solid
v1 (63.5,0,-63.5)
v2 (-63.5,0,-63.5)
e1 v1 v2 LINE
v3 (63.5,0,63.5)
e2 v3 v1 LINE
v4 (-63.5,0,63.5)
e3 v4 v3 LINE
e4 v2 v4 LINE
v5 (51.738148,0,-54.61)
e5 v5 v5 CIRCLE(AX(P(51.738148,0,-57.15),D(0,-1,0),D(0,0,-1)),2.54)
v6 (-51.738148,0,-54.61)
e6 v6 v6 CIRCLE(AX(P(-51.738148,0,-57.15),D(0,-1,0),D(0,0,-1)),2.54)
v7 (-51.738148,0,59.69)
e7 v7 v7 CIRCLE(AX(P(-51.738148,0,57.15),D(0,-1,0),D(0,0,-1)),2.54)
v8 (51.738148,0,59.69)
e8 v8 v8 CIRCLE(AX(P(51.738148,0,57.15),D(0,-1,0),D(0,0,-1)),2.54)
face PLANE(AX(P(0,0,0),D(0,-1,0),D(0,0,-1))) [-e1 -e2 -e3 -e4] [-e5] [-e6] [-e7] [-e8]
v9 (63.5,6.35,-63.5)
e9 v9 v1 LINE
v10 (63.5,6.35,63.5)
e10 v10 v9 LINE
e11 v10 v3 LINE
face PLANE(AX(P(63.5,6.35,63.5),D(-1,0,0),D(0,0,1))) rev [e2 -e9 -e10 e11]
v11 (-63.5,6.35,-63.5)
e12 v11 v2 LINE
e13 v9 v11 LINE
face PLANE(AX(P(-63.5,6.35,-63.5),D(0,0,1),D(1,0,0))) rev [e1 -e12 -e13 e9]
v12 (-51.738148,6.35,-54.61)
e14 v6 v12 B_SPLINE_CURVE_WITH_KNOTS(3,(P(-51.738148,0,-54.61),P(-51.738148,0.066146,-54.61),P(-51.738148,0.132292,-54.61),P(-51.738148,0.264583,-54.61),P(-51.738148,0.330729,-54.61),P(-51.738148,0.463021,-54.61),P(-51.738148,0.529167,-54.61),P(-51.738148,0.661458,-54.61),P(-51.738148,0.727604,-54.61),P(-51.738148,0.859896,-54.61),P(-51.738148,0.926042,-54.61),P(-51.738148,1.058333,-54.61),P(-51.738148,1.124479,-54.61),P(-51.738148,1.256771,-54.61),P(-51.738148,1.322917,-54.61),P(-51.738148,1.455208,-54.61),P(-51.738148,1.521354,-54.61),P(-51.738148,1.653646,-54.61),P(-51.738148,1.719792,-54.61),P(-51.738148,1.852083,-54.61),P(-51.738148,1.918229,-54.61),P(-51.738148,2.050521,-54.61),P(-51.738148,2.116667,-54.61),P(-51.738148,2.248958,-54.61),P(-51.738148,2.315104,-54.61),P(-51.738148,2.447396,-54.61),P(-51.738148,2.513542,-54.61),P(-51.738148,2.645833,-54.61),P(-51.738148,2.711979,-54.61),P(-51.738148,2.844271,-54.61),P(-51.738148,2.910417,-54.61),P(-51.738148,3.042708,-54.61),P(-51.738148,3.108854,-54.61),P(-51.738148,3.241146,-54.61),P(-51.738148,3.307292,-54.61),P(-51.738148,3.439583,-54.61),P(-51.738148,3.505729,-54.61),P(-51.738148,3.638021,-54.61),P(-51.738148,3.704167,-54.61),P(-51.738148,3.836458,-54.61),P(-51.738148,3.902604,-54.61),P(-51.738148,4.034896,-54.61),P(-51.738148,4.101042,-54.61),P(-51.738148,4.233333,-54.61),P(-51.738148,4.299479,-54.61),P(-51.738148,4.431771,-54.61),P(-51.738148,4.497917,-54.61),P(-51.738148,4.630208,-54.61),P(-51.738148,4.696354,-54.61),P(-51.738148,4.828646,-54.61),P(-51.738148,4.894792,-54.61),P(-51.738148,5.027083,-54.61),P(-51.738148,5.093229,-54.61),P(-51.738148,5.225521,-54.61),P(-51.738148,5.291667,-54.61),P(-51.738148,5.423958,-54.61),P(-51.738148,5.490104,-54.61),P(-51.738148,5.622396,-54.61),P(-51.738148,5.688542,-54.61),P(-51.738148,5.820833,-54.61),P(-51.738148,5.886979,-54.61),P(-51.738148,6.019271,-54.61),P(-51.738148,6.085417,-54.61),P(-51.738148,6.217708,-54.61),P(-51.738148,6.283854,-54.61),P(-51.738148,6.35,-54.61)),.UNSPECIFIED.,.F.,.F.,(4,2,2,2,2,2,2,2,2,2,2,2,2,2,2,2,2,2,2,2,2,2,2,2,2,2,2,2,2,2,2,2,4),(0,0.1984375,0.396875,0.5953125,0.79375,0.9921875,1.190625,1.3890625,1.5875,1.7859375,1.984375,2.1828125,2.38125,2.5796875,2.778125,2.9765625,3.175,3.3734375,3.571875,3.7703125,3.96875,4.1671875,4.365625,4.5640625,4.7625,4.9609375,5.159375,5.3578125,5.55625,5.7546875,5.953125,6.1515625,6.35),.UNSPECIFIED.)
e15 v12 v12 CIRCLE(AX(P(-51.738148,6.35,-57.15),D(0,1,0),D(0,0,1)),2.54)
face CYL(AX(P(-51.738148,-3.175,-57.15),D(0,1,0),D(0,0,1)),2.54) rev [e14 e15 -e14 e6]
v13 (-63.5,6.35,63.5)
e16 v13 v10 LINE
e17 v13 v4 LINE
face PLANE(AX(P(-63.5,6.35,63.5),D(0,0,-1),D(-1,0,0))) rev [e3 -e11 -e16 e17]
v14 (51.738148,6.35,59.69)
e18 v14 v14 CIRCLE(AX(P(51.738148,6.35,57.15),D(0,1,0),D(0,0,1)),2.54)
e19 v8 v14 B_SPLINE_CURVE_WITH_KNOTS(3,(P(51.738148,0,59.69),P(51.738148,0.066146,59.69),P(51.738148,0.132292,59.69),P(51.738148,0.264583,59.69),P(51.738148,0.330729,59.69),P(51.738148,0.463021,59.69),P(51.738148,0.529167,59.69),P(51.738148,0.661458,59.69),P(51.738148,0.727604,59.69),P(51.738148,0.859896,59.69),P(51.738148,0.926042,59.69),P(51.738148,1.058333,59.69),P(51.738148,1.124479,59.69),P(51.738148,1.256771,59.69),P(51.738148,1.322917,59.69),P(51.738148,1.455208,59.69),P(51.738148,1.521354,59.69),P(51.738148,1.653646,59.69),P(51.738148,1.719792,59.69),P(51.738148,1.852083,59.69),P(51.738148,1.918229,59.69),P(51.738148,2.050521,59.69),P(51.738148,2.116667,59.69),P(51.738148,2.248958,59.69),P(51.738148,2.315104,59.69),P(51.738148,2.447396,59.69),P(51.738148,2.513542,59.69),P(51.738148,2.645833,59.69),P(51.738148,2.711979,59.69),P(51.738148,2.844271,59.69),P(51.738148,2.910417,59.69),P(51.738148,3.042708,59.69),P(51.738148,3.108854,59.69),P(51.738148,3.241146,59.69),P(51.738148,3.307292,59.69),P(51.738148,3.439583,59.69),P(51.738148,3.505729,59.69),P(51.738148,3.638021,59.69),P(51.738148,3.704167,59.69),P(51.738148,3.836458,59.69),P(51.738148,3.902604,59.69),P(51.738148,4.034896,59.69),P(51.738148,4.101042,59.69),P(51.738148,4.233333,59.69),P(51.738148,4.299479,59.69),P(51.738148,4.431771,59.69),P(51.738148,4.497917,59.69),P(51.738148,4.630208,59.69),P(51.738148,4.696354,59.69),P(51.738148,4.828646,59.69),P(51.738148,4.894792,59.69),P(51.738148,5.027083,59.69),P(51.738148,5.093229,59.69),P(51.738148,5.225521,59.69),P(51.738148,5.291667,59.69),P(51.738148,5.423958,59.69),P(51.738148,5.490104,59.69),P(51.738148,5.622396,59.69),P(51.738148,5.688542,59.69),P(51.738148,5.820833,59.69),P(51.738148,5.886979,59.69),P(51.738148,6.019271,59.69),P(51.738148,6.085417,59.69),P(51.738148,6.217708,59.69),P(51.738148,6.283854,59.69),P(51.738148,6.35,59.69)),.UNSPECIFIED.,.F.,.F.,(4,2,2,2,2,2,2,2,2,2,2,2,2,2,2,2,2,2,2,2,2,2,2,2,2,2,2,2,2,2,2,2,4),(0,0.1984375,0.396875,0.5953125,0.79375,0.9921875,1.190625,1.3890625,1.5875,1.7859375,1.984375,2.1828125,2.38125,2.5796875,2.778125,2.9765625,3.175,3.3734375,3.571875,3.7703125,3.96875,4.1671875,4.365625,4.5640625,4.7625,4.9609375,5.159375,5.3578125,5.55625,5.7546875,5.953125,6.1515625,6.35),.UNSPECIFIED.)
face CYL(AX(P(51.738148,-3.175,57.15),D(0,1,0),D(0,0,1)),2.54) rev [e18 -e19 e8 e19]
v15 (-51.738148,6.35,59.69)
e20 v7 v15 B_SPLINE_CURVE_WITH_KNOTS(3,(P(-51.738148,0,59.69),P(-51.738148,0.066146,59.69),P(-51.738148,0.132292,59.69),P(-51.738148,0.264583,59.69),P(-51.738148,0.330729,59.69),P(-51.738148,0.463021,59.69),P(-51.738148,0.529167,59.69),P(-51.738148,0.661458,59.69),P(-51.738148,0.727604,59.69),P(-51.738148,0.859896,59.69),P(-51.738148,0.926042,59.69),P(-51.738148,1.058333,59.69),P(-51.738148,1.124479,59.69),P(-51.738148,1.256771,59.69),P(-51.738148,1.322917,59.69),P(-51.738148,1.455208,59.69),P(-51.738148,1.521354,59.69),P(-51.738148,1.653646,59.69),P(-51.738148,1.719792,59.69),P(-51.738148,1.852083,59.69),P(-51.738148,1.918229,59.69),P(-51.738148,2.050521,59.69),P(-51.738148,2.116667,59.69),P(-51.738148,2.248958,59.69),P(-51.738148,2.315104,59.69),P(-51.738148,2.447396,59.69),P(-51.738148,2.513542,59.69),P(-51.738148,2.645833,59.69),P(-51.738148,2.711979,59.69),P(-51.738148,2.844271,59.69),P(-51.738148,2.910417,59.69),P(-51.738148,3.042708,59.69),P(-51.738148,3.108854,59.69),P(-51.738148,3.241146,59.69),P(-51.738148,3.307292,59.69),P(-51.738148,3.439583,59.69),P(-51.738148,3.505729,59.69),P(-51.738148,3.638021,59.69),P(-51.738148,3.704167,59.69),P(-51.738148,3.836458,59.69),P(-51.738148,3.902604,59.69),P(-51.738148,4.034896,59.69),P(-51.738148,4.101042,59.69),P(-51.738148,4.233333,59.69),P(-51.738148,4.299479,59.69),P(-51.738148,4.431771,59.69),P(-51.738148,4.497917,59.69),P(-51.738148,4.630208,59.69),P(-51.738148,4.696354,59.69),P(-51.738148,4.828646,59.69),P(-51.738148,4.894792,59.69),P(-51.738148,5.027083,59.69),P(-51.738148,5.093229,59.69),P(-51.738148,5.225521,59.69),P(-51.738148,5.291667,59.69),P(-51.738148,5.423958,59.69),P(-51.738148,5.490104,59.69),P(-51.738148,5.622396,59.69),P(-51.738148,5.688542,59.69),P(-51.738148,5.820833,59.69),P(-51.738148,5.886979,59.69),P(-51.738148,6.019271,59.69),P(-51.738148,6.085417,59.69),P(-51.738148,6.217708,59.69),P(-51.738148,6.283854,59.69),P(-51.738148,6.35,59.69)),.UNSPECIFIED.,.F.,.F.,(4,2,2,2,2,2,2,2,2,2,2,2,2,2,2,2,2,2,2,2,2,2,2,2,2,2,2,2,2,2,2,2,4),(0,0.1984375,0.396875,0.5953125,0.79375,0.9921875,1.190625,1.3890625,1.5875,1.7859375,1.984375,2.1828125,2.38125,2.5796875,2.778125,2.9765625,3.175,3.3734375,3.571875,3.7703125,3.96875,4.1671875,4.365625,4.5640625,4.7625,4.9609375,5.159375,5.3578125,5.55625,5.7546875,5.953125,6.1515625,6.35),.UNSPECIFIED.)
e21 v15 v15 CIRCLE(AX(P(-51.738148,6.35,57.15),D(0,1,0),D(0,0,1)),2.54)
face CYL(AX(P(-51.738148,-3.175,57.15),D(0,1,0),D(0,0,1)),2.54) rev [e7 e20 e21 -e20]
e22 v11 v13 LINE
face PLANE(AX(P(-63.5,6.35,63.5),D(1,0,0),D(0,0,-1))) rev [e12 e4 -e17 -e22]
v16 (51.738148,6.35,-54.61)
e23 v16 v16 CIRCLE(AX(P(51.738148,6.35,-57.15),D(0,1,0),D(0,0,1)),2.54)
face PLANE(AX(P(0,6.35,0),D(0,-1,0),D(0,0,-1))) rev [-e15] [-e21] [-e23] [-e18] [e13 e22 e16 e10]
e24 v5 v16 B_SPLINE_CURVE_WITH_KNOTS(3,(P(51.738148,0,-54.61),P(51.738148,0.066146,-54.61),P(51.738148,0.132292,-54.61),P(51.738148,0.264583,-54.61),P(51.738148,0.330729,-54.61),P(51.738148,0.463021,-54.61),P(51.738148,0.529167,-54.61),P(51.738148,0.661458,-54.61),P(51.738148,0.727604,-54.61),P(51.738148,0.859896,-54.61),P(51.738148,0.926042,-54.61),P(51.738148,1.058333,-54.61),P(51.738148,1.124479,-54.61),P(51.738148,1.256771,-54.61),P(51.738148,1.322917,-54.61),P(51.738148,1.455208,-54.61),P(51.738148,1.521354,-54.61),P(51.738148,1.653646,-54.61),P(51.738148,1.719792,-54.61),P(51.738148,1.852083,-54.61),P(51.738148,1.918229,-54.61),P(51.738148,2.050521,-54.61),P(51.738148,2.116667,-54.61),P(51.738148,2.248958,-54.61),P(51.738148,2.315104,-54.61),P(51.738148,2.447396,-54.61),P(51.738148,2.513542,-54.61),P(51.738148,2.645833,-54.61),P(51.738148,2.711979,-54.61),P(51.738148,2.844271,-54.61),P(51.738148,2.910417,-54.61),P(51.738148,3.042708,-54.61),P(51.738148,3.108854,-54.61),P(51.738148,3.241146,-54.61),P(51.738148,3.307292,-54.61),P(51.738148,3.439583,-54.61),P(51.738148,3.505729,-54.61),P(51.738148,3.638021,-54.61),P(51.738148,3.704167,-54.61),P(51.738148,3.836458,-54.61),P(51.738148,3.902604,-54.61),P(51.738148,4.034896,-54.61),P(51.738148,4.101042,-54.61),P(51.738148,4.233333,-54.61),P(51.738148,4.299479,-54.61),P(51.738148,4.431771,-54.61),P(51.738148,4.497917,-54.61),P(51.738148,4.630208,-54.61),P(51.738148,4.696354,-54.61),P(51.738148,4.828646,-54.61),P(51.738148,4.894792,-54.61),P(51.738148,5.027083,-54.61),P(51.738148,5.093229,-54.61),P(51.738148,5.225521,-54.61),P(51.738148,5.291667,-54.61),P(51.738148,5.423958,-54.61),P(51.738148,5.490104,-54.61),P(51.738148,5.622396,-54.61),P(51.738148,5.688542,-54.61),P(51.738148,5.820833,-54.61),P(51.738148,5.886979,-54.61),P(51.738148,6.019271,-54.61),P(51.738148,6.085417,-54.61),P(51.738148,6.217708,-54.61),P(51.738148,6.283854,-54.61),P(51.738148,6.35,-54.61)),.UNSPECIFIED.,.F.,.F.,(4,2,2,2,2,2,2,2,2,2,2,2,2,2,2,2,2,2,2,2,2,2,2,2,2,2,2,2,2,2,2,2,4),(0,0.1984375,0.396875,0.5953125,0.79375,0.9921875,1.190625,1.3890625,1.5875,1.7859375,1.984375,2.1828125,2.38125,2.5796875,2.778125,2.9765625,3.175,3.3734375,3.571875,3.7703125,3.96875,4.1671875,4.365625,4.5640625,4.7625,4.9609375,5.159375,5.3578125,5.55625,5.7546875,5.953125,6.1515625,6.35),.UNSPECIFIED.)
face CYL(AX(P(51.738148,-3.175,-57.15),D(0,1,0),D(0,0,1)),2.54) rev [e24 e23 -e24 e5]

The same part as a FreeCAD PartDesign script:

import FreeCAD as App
import Part
import Sketcher
from FreeCAD import Vector
Q = App.Units.Quantity


def add_polygon(sketch, points):
    """Adds a closed chain of lines whose ends are joined by coincident constraints."""
    first, n = sketch.GeometryCount, len(points)
    for a, b in zip(points, points[1:] + points[:1]):
        sketch.addGeometry(Part.LineSegment(App.Vector(*a, 0), App.Vector(*b, 0)), False)
    for i in range(n):
        sketch.addConstraint(Sketcher.Constraint("Coincident", first + i, 2, first + (i + 1) % n, 1))

doc = App.newDocument("Part")
body = doc.addObject("PartDesign::Body", "Body")

# Sketch on XZ plane
sketch1 = body.newObject("Sketcher::SketchObject", "Sketch")
sketch1.AttachmentSupport = (doc.getObject("XZ_Plane"), [""])
sketch1.MapMode = "FlatFace"
add_polygon(sketch1, [(-64, -64), (-64, 64), (64, 64), (64, -64)])  # lines 0-3
sketch1.addConstraint([
    Sketcher.Constraint("Vertical", 0),
    Sketcher.Constraint("Horizontal", 1),
    Sketcher.Constraint("Vertical", 2),
    Sketcher.Constraint("Horizontal", 3),
    Sketcher.Constraint("Symmetric", 0, 2, 2, 2, -1, 1),
    Sketcher.Constraint("Equal", 3, 0),
    Sketcher.Constraint("DistanceX", 1, 1, 1, 2, Q("5 in")),
])
pad1 = body.newObject("PartDesign::Pad", "Pad")
pad1.Profile = sketch1
pad1.Length = Q("0.25 in")
pad1.Reversed = True

# Sketch on XZ plane
sketch2 = body.newObject("Sketcher::SketchObject", "Sketch001")
sketch2.AttachmentSupport = (doc.getObject("XZ_Plane"), [""])
sketch2.MapMode = "FlatFace"
sketch2.AttachmentOffset = App.Placement(Vector(0, 0, -0.25 * 25.4), App.Rotation())
sketch2.addGeometry([
    Part.Circle(Vector(-51.7, -57.1, 0), Vector(0, 0, 1), 2.5),
    Part.Circle(Vector(51.7, -57.1, 0), Vector(0, 0, 1), 2.5),
    Part.Circle(Vector(-51.7, 57.1, 0), Vector(0, 0, 1), 2.5),
    Part.Circle(Vector(51.7, 57.1, 0), Vector(0, 0, 1), 2.5),
], False)
sketch2.addConstraint([
    Sketcher.Constraint("Equal", 0, 1),
    Sketcher.Constraint("Equal", 1, 2),
    Sketcher.Constraint("Equal", 2, 3),
    Sketcher.Constraint("Symmetric", 1, 3, 2, 3, -1, 1),
    Sketcher.Constraint("Symmetric", 0, 3, 3, 3, -1, 1),
    Sketcher.Constraint("Symmetric", 0, 3, 1, 3, -2),
    Sketcher.Constraint("Diameter", 0, Q("0.2 in")),
    Sketcher.Constraint("DistanceY", 0, 3, 2, 3, Q("4.5 in")),
    Sketcher.Constraint("DistanceX", 0, 3, -1, 1, 51.738148),
])
pocket1 = body.newObject("PartDesign::Pocket", "Pocket")
pocket1.Profile = sketch2
pocket1.Length = Q("0.375 in")
pocket1.Reversed = True

doc.recompute()
